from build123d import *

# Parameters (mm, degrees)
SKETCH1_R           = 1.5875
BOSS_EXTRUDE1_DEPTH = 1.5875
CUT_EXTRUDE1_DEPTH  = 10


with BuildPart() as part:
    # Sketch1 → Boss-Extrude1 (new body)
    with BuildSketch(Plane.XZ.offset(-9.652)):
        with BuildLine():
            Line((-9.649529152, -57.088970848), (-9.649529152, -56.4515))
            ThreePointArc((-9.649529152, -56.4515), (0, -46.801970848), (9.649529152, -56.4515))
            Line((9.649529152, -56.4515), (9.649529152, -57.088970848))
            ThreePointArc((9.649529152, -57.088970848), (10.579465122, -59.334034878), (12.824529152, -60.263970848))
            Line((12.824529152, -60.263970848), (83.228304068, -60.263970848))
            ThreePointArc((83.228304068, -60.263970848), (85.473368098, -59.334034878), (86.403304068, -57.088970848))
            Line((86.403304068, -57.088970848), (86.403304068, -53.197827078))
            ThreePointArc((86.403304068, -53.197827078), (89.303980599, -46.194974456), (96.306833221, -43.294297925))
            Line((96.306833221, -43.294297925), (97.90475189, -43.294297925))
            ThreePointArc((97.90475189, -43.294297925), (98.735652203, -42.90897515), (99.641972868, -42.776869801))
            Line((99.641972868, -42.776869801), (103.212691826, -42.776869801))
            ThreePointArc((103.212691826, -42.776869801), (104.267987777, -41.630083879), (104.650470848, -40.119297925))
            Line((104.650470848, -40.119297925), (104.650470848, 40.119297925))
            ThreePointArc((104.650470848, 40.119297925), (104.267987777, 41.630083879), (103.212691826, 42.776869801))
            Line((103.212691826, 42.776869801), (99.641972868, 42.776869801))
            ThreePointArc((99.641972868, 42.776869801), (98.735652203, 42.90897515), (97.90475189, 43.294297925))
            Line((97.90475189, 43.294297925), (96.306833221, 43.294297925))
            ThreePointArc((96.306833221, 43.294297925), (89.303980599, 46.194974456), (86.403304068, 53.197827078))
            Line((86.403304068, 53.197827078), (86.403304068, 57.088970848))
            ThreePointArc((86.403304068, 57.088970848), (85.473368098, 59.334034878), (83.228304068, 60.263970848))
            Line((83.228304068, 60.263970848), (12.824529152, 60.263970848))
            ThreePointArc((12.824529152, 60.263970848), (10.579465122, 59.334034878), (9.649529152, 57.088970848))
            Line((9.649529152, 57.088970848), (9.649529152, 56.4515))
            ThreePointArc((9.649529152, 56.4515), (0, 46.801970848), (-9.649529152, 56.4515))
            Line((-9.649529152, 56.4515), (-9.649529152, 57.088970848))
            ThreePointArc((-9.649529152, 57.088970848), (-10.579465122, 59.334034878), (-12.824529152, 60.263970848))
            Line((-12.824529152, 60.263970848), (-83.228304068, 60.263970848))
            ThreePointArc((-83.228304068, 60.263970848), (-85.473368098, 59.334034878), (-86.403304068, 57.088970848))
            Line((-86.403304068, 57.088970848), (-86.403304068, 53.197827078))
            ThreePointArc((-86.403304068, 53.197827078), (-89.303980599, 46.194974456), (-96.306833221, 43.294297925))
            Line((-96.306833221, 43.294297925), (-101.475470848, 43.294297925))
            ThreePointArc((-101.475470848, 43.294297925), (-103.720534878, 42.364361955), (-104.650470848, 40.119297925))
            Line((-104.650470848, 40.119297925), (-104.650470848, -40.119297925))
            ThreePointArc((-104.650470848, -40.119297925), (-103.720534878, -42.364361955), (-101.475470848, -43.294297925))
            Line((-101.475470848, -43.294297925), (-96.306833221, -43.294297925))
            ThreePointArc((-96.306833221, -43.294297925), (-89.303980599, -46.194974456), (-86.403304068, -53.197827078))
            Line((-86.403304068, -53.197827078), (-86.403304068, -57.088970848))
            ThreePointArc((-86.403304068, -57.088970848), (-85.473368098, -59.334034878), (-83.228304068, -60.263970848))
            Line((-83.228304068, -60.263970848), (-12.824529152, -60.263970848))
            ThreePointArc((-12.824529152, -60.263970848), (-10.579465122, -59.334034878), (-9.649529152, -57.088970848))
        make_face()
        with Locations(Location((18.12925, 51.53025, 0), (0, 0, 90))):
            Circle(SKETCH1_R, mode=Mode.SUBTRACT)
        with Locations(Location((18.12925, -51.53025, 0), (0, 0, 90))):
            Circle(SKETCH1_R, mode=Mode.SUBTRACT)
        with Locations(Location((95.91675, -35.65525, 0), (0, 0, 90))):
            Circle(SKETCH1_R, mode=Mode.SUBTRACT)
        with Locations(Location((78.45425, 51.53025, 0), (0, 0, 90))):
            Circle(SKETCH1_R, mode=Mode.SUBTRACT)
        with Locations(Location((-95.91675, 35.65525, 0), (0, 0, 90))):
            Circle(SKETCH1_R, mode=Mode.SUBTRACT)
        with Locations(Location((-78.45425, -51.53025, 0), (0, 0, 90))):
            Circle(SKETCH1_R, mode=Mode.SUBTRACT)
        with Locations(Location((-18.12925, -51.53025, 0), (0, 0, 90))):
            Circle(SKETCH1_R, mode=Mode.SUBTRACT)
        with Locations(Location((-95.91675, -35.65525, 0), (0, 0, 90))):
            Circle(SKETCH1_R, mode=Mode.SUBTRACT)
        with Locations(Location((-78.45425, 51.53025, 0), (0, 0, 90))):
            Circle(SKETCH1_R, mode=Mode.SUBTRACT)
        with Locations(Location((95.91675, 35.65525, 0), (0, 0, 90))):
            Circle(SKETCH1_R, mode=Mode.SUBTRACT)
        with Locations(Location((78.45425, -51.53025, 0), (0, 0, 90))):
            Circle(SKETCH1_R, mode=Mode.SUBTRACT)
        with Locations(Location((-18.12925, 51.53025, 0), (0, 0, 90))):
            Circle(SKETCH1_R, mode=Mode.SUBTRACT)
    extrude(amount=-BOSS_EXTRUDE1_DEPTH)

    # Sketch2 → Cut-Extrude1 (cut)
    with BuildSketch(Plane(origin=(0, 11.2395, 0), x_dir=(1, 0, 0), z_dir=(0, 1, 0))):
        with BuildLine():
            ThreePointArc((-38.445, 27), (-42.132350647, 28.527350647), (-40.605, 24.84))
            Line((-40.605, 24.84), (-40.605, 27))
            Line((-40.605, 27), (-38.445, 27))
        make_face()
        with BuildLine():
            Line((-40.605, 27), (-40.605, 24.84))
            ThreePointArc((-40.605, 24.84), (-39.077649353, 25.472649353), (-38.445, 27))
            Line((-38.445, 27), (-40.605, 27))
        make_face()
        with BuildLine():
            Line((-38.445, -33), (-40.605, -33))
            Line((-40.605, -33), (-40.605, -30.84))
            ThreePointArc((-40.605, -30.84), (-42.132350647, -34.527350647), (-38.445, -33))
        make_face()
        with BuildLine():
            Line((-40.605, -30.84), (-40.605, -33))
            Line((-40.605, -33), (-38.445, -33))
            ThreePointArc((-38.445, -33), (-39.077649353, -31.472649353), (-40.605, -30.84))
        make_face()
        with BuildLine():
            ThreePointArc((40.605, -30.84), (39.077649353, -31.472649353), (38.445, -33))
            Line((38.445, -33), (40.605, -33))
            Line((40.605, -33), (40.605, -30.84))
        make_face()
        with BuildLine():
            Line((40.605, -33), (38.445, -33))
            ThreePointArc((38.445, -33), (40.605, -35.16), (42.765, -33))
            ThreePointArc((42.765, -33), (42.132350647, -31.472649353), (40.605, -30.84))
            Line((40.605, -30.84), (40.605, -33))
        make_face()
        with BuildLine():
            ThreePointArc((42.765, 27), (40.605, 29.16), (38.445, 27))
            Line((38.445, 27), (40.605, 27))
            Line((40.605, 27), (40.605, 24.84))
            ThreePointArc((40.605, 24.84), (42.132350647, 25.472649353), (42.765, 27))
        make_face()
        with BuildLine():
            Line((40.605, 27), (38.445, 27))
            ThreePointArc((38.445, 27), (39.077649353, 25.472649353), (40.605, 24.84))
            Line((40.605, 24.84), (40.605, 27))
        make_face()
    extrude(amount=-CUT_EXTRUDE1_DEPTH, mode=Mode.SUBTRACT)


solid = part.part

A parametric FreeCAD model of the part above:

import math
import FreeCAD as App
import Part
import Sketcher
Q = App.Units.Quantity

doc = App.newDocument("Part")
body = doc.addObject("PartDesign::Body", "Body")

# Sketch on XZ plane
sketch1 = doc.addObject("Sketcher::SketchObject", "Sketch")
body.addObject(sketch1)
sketch1.AttachmentSupport = (doc.XZ_Plane, [""])
sketch1.MapMode = "FlatFace"
sketch1.AttachmentOffset = App.Placement(App.Vector(0, 0, -0.38 * 25.4), App.Rotation())
sketch1.addGeometry(Part.LineSegment(App.Vector(-9.6, -57.1, 0), App.Vector(-9.6, -56.5, 0)), False)
sketch1.addGeometry(Part.ArcOfCircle(Part.Circle(App.Vector(0, -56.5, 0), App.Vector(0, 0, 1), 9.6), math.radians(0), math.radians(180)), False)
sketch1.addGeometry(Part.LineSegment(App.Vector(9.6, -56.5, 0), App.Vector(9.6, -57.1, 0)), False)
sketch1.addGeometry(Part.ArcOfCircle(Part.Circle(App.Vector(12.8, -57.1, 0), App.Vector(0, 0, 1), 3.2), math.radians(-180), math.radians(-90)), False)
sketch1.addGeometry(Part.LineSegment(App.Vector(12.8, -60.3, 0), App.Vector(83.2, -60.3, 0)), False)
sketch1.addGeometry(Part.ArcOfCircle(Part.Circle(App.Vector(83.2, -57.1, 0), App.Vector(0, 0, 1), 3.2), math.radians(-90), math.radians(0)), False)
sketch1.addGeometry(Part.LineSegment(App.Vector(86.4, -57.1, 0), App.Vector(86.4, -53.2, 0)), False)
sketch1.addGeometry(Part.ArcOfCircle(Part.Circle(App.Vector(96.3, -53.2, 0), App.Vector(0, 0, 1), 9.9), math.radians(90), math.radians(180)), False)
sketch1.addGeometry(Part.LineSegment(App.Vector(96.3, -43.3, 0), App.Vector(97.9, -43.3, 0)), False)
sketch1.addGeometry(Part.ArcOfCircle(Part.Circle(App.Vector(99.6, -46, 0), App.Vector(0, 0, 1), 3.2), math.radians(90), math.radians(123)), False)
sketch1.addGeometry(Part.LineSegment(App.Vector(99.6, -42.8, 0), App.Vector(103.2, -42.8, 0)), False)
sketch1.addGeometry(Part.ArcOfCircle(Part.Circle(App.Vector(101.5, -40.1, 0), App.Vector(0, 0, 1), 3.2), math.radians(-57), math.radians(0)), False)
sketch1.addGeometry(Part.LineSegment(App.Vector(104.7, -40.1, 0), App.Vector(104.7, 40.1, 0)), False)
sketch1.addGeometry(Part.ArcOfCircle(Part.Circle(App.Vector(101.5, 40.1, 0), App.Vector(0, 0, 1), 3.2), math.radians(0), math.radians(57)), False)
sketch1.addGeometry(Part.LineSegment(App.Vector(103.2, 42.8, 0), App.Vector(99.6, 42.8, 0)), False)
sketch1.addGeometry(Part.ArcOfCircle(Part.Circle(App.Vector(99.6, 46, 0), App.Vector(0, 0, 1), 3.2), math.radians(-123), math.radians(-90)), False)
sketch1.addGeometry(Part.LineSegment(App.Vector(97.9, 43.3, 0), App.Vector(96.3, 43.3, 0)), False)
sketch1.addGeometry(Part.ArcOfCircle(Part.Circle(App.Vector(96.3, 53.2, 0), App.Vector(0, 0, 1), 9.9), math.radians(180), math.radians(270)), False)
sketch1.addGeometry(Part.LineSegment(App.Vector(86.4, 53.2, 0), App.Vector(86.4, 57.1, 0)), False)
sketch1.addGeometry(Part.ArcOfCircle(Part.Circle(App.Vector(83.2, 57.1, 0), App.Vector(0, 0, 1), 3.2), math.radians(0), math.radians(90)), False)
sketch1.addGeometry(Part.LineSegment(App.Vector(83.2, 60.3, 0), App.Vector(12.8, 60.3, 0)), False)
sketch1.addGeometry(Part.ArcOfCircle(Part.Circle(App.Vector(12.8, 57.1, 0), App.Vector(0, 0, 1), 3.2), math.radians(90), math.radians(180)), False)
sketch1.addGeometry(Part.LineSegment(App.Vector(9.6, 57.1, 0), App.Vector(9.6, 56.5, 0)), False)
sketch1.addGeometry(Part.ArcOfCircle(Part.Circle(App.Vector(0, 56.5, 0), App.Vector(0, 0, 1), 9.6), math.radians(180), math.radians(360)), False)
sketch1.addGeometry(Part.LineSegment(App.Vector(-9.6, 56.5, 0), App.Vector(-9.6, 57.1, 0)), False)
sketch1.addGeometry(Part.ArcOfCircle(Part.Circle(App.Vector(-12.8, 57.1, 0), App.Vector(0, 0, 1), 3.2), math.radians(0), math.radians(90)), False)
sketch1.addGeometry(Part.LineSegment(App.Vector(-12.8, 60.3, 0), App.Vector(-83.2, 60.3, 0)), False)
sketch1.addGeometry(Part.ArcOfCircle(Part.Circle(App.Vector(-83.2, 57.1, 0), App.Vector(0, 0, 1), 3.2), math.radians(90), math.radians(180)), False)
sketch1.addGeometry(Part.LineSegment(App.Vector(-86.4, 57.1, 0), App.Vector(-86.4, 53.2, 0)), False)
sketch1.addGeometry(Part.ArcOfCircle(Part.Circle(App.Vector(-96.3, 53.2, 0), App.Vector(0, 0, 1), 9.9), math.radians(-90), math.radians(0)), False)
sketch1.addGeometry(Part.LineSegment(App.Vector(-96.3, 43.3, 0), App.Vector(-101.5, 43.3, 0)), False)
sketch1.addGeometry(Part.ArcOfCircle(Part.Circle(App.Vector(-101.5, 40.1, 0), App.Vector(0, 0, 1), 3.2), math.radians(90), math.radians(180)), False)
sketch1.addGeometry(Part.LineSegment(App.Vector(-104.7, 40.1, 0), App.Vector(-104.7, -40.1, 0)), False)
sketch1.addGeometry(Part.ArcOfCircle(Part.Circle(App.Vector(-101.5, -40.1, 0), App.Vector(0, 0, 1), 3.2), math.radians(-180), math.radians(-90)), False)
sketch1.addGeometry(Part.LineSegment(App.Vector(-101.5, -43.3, 0), App.Vector(-96.3, -43.3, 0)), False)
sketch1.addGeometry(Part.ArcOfCircle(Part.Circle(App.Vector(-96.3, -53.2, 0), App.Vector(0, 0, 1), 9.9), math.radians(0), math.radians(90)), False)
sketch1.addGeometry(Part.LineSegment(App.Vector(-86.4, -53.2, 0), App.Vector(-86.4, -57.1, 0)), False)
sketch1.addGeometry(Part.ArcOfCircle(Part.Circle(App.Vector(-83.2, -57.1, 0), App.Vector(0, 0, 1), 3.2), math.radians(-180), math.radians(-90)), False)
sketch1.addGeometry(Part.LineSegment(App.Vector(-83.2, -60.3, 0), App.Vector(-12.8, -60.3, 0)), False)
sketch1.addGeometry(Part.ArcOfCircle(Part.Circle(App.Vector(-12.8, -57.1, 0), App.Vector(0, 0, 1), 3.2), math.radians(-90), math.radians(0)), False)
sketch1.addGeometry(Part.Circle(App.Vector(-78.5, -51.5, 0), App.Vector(0, 0, 1), 1.6), False)
sketch1.addGeometry(Part.Circle(App.Vector(-95.9, -35.7, 0), App.Vector(0, 0, 1), 1.6), False)
sketch1.addGeometry(Part.Circle(App.Vector(-18.1, -51.5, 0), App.Vector(0, 0, 1), 1.6), False)
sketch1.addGeometry(Part.Circle(App.Vector(18.1, -51.5, 0), App.Vector(0, 0, 1), 1.6), False)
sketch1.addGeometry(Part.Circle(App.Vector(78.5, -51.5, 0), App.Vector(0, 0, 1), 1.6), False)
sketch1.addGeometry(Part.Circle(App.Vector(95.9, -35.7, 0), App.Vector(0, 0, 1), 1.6), False)
sketch1.addGeometry(Part.Circle(App.Vector(-95.9, 35.7, 0), App.Vector(0, 0, 1), 1.6), False)
sketch1.addGeometry(Part.Circle(App.Vector(-78.5, 51.5, 0), App.Vector(0, 0, 1), 1.6), False)
sketch1.addGeometry(Part.Circle(App.Vector(-18.1, 51.5, 0), App.Vector(0, 0, 1), 1.6), False)
sketch1.addGeometry(Part.Circle(App.Vector(18.1, 51.5, 0), App.Vector(0, 0, 1), 1.6), False)
sketch1.addGeometry(Part.Circle(App.Vector(95.9, 35.7, 0), App.Vector(0, 0, 1), 1.6), False)
sketch1.addGeometry(Part.Circle(App.Vector(78.5, 51.5, 0), App.Vector(0, 0, 1), 1.6), False)
sketch1.addConstraint(Sketcher.Constraint("Tangent", 0, 2, 1, 2))
sketch1.addConstraint(Sketcher.Constraint("Tangent", 1, 1, 2, 1))
sketch1.addConstraint(Sketcher.Constraint("Tangent", 2, 2, 3, 1))
sketch1.addConstraint(Sketcher.Constraint("Tangent", 3, 2, 4, 1))
sketch1.addConstraint(Sketcher.Constraint("Tangent", 4, 2, 5, 1))
sketch1.addConstraint(Sketcher.Constraint("Tangent", 5, 2, 6, 1))
sketch1.addConstraint(Sketcher.Constraint("Tangent", 6, 2, 7, 2))
sketch1.addConstraint(Sketcher.Constraint("Tangent", 7, 1, 8, 1))
sketch1.addConstraint(Sketcher.Constraint("Coincident", 8, 2, 9, 2))
sketch1.addConstraint(Sketcher.Constraint("Tangent", 9, 1, 10, 1))
sketch1.addConstraint(Sketcher.Constraint("Coincident", 10, 2, 11, 1))
sketch1.addConstraint(Sketcher.Constraint("Tangent", 11, 2, 12, 1))
sketch1.addConstraint(Sketcher.Constraint("Tangent", 12, 2, 13, 1))
sketch1.addConstraint(Sketcher.Constraint("Coincident", 13, 2, 14, 1))
sketch1.addConstraint(Sketcher.Constraint("Tangent", 14, 2, 15, 2))
sketch1.addConstraint(Sketcher.Constraint("Coincident", 15, 1, 16, 1))
sketch1.addConstraint(Sketcher.Constraint("Tangent", 16, 2, 17, 2))
sketch1.addConstraint(Sketcher.Constraint("Tangent", 17, 1, 18, 1))
sketch1.addConstraint(Sketcher.Constraint("Tangent", 18, 2, 19, 1))
sketch1.addConstraint(Sketcher.Constraint("Tangent", 19, 2, 20, 1))
sketch1.addConstraint(Sketcher.Constraint("Tangent", 20, 2, 21, 1))
sketch1.addConstraint(Sketcher.Constraint("Tangent", 21, 2, 22, 1))
sketch1.addConstraint(Sketcher.Constraint("Tangent", 22, 2, 23, 2))
sketch1.addConstraint(Sketcher.Constraint("Tangent", 23, 1, 24, 1))
sketch1.addConstraint(Sketcher.Constraint("Tangent", 24, 2, 25, 1))
sketch1.addConstraint(Sketcher.Constraint("Tangent", 25, 2, 26, 1))
sketch1.addConstraint(Sketcher.Constraint("Tangent", 26, 2, 27, 1))
sketch1.addConstraint(Sketcher.Constraint("Tangent", 27, 2, 28, 1))
sketch1.addConstraint(Sketcher.Constraint("Tangent", 28, 2, 29, 2))
sketch1.addConstraint(Sketcher.Constraint("Tangent", 29, 1, 30, 1))
sketch1.addConstraint(Sketcher.Constraint("Tangent", 30, 2, 31, 1))
sketch1.addConstraint(Sketcher.Constraint("Tangent", 31, 2, 32, 1))
sketch1.addConstraint(Sketcher.Constraint("Tangent", 32, 2, 33, 1))
sketch1.addConstraint(Sketcher.Constraint("Tangent", 33, 2, 34, 1))
sketch1.addConstraint(Sketcher.Constraint("Tangent", 34, 2, 35, 2))
sketch1.addConstraint(Sketcher.Constraint("Tangent", 35, 1, 36, 1))
sketch1.addConstraint(Sketcher.Constraint("Tangent", 36, 2, 37, 1))
sketch1.addConstraint(Sketcher.Constraint("Tangent", 37, 2, 38, 1))
sketch1.addConstraint(Sketcher.Constraint("Tangent", 38, 2, 39, 1))
sketch1.addConstraint(Sketcher.Constraint("Tangent", 39, 2, 0, 1))
sketch1.addConstraint(Sketcher.Constraint("Vertical", 0))
sketch1.addConstraint(Sketcher.Constraint("Vertical", 2))
sketch1.addConstraint(Sketcher.Constraint("Horizontal", 4))
sketch1.addConstraint(Sketcher.Constraint("Vertical", 6))
sketch1.addConstraint(Sketcher.Constraint("Horizontal", 8))
sketch1.addConstraint(Sketcher.Constraint("Horizontal", 10))
sketch1.addConstraint(Sketcher.Constraint("Vertical", 12))
sketch1.addConstraint(Sketcher.Constraint("Horizontal", 14))
sketch1.addConstraint(Sketcher.Constraint("Horizontal", 16))
sketch1.addConstraint(Sketcher.Constraint("Vertical", 18))
sketch1.addConstraint(Sketcher.Constraint("Horizontal", 20))
sketch1.addConstraint(Sketcher.Constraint("Vertical", 22))
sketch1.addConstraint(Sketcher.Constraint("Vertical", 24))
sketch1.addConstraint(Sketcher.Constraint("Horizontal", 26))
sketch1.addConstraint(Sketcher.Constraint("Vertical", 28))
sketch1.addConstraint(Sketcher.Constraint("Horizontal", 30))
sketch1.addConstraint(Sketcher.Constraint("Vertical", 32))
sketch1.addConstraint(Sketcher.Constraint("Horizontal", 34))
sketch1.addConstraint(Sketcher.Constraint("Vertical", 36))
sketch1.addConstraint(Sketcher.Constraint("Horizontal", 38))
sketch1.addConstraint(Sketcher.Constraint("Equal", 3, 5))
sketch1.addConstraint(Sketcher.Constraint("Equal", 5, 9))
sketch1.addConstraint(Sketcher.Constraint("Equal", 9, 11))
sketch1.addConstraint(Sketcher.Constraint("Equal", 11, 13))
sketch1.addConstraint(Sketcher.Constraint("Equal", 13, 15))
sketch1.addConstraint(Sketcher.Constraint("Equal", 7, 17))
sketch1.addConstraint(Sketcher.Constraint("Equal", 15, 19))
sketch1.addConstraint(Sketcher.Constraint("Equal", 19, 21))
sketch1.addConstraint(Sketcher.Constraint("Equal", 1, 23))
sketch1.addConstraint(Sketcher.Constraint("Equal", 21, 25))
sketch1.addConstraint(Sketcher.Constraint("Equal", 25, 27))
sketch1.addConstraint(Sketcher.Constraint("Equal", 17, 29))
sketch1.addConstraint(Sketcher.Constraint("Equal", 27, 31))
sketch1.addConstraint(Sketcher.Constraint("Equal", 31, 33))
sketch1.addConstraint(Sketcher.Constraint("Equal", 29, 35))
sketch1.addConstraint(Sketcher.Constraint("Equal", 33, 37))
sketch1.addConstraint(Sketcher.Constraint("Equal", 37, 39))
sketch1.addConstraint(Sketcher.Constraint("Equal", 40, 41))
sketch1.addConstraint(Sketcher.Constraint("Equal", 41, 42))
sketch1.addConstraint(Sketcher.Constraint("Equal", 42, 43))
sketch1.addConstraint(Sketcher.Constraint("Equal", 43, 44))
sketch1.addConstraint(Sketcher.Constraint("Equal", 44, 45))
sketch1.addConstraint(Sketcher.Constraint("Equal", 45, 46))
sketch1.addConstraint(Sketcher.Constraint("Equal", 46, 47))
sketch1.addConstraint(Sketcher.Constraint("Equal", 47, 48))
sketch1.addConstraint(Sketcher.Constraint("Equal", 48, 49))
sketch1.addConstraint(Sketcher.Constraint("Equal", 49, 50))
sketch1.addConstraint(Sketcher.Constraint("Equal", 50, 51))
sketch1.addConstraint(Sketcher.Constraint("Symmetric", 1, 3, 23, 3, -1, 1))
sketch1.addConstraint(Sketcher.Constraint("Symmetric", 5, 3, 27, 3, -1, 1))
sketch1.addConstraint(Sketcher.Constraint("Symmetric", 11, 3, 31, 3, -1, 1))
sketch1.addConstraint(Sketcher.Constraint("Symmetric", 17, 3, 35, 3, -1, 1))
sketch1.addConstraint(Sketcher.Constraint("Symmetric", 45, 3, 46, 3, -1, 1))
sketch1.addConstraint(Sketcher.Constraint("Symmetric", 44, 3, 47, 3, -1, 1))
sketch1.addConstraint(Sketcher.Constraint("Symmetric", 43, 3, 48, 3, -1, 1))
sketch1.addConstraint(Sketcher.Constraint("Symmetric", 42, 3, 49, 3, -1, 1))
sketch1.addConstraint(Sketcher.Constraint("Symmetric", 41, 3, 50, 3, -1, 1))
sketch1.addConstraint(Sketcher.Constraint("Symmetric", 40, 3, 51, 3, -1, 1))
sketch1.addConstraint(Sketcher.Constraint("Symmetric", 21, 3, 25, 3, -2))
sketch1.addConstraint(Sketcher.Constraint("Symmetric", 17, 3, 29, 3, -2))
sketch1.addConstraint(Sketcher.Constraint("Symmetric", 42, 3, 43, 3, -2))
sketch1.addConstraint(Sketcher.Constraint("Symmetric", 40, 3, 44, 3, -2))
sketch1.addConstraint(Sketcher.Constraint("Symmetric", 41, 3, 45, 3, -2))
sketch1.addConstraint(Sketcher.Constraint("Symmetric", 9, 3, 15, 3, -1))
sketch1.addConstraint(Sketcher.Constraint("Horizontal", 13, 3, 31, 3))
sketch1.addConstraint(Sketcher.Constraint("Horizontal", 7, 3, 35, 3))
sketch1.addConstraint(Sketcher.Constraint("Horizontal", 5, 3, 37, 3))
sketch1.addConstraint(Sketcher.Constraint("Horizontal", 40, 3, 42, 3))
sketch1.addConstraint(Sketcher.Constraint("Diameter", 40, Q("0.125 in")))
sketch1.addConstraint(Sketcher.Constraint("Radius", 3, Q("0.125 in")))
sketch1.addConstraint(Sketcher.Constraint("DistanceY", 12, 1, 12, 2, Q("3.1589998 in")))
sketch1.addConstraint(Sketcher.Constraint("Radius", 1, 9.649529))
sketch1.addConstraint(Sketcher.Constraint("Radius", 7, 9.903529))
sketch1.addConstraint(Sketcher.Constraint("DistanceY", 1, 3, -1, 1, Q("2.2225 in")))
sketch1.addConstraint(Sketcher.Constraint("DistanceX", 8, 1, 8, 2, 1.597919))
sketch1.addConstraint(Sketcher.Constraint("DistanceX", 10, 1, 10, 2, 3.570719))
sketch1.addConstraint(Sketcher.Constraint("DistanceY", 0, 1, 0, 2, 0.637471))
sketch1.addConstraint(Sketcher.Constraint("DistanceX", 4, 1, 4, 2, 70.403775))
sketch1.addConstraint(Sketcher.Constraint("DistanceY", 9, 3, -1, 1, 45.95187))
sketch1.addConstraint(Sketcher.Constraint("DistanceX", 40, 3, -1, 1, 78.45425))
sketch1.addConstraint(Sketcher.Constraint("DistanceY", 40, 3, -1, 1, 51.53025))
sketch1.addConstraint(Sketcher.Constraint("DistanceX", 41, 3, -1, 1, 95.91675))
sketch1.addConstraint(Sketcher.Constraint("DistanceY", 41, 3, -1, 1, 35.65525))
sketch1.addConstraint(Sketcher.Constraint("DistanceX", 42, 3, -1, 1, 18.12925))
pad1 = doc.addObject("PartDesign::Pad", "Pad")
body.addObject(pad1)
pad1.Profile = sketch1
pad1.Length = Q("0.0625 in")
pad1.Reversed = True

# Sketch on XZ plane
sketch2 = doc.addObject("Sketcher::SketchObject", "Sketch001")
body.addObject(sketch2)
sketch2.AttachmentSupport = (doc.XZ_Plane, [""])
sketch2.MapMode = "FlatFace"
sketch2.AttachmentOffset = App.Placement(App.Vector(0, 0, -0.4425 * 25.4), App.Rotation())
sketch2.addGeometry(Part.ArcOfCircle(Part.Circle(App.Vector(-40.6, -27, 0), App.Vector(0, 0, 1), 2.2), math.radians(90), math.radians(360)), False)
sketch2.addGeometry(Part.ArcOfCircle(Part.Circle(App.Vector(-40.6, -27, 0), App.Vector(0, 0, 1), 2.2), math.radians(0), math.radians(90)), False)
sketch2.addGeometry(Part.ArcOfCircle(Part.Circle(App.Vector(-40.6, 33, 0), App.Vector(0, 0, 1), 2.2), math.radians(0), math.radians(270)), False)
sketch2.addGeometry(Part.ArcOfCircle(Part.Circle(App.Vector(-40.6, 33, 0), App.Vector(0, 0, 1), 2.2), math.radians(-90), math.radians(0)), False)
sketch2.addGeometry(Part.ArcOfCircle(Part.Circle(App.Vector(40.6, 33, 0), App.Vector(0, 0, 1), 2.2), math.radians(-180), math.radians(-90)), False)
sketch2.addGeometry(Part.ArcOfCircle(Part.Circle(App.Vector(40.6, 33, 0), App.Vector(0, 0, 1), 2.2), math.radians(0), math.radians(180)), False)
sketch2.addGeometry(Part.ArcOfCircle(Part.Circle(App.Vector(40.6, 33, 0), App.Vector(0, 0, 1), 2.2), math.radians(-90), math.radians(0)), False)
sketch2.addGeometry(Part.ArcOfCircle(Part.Circle(App.Vector(40.6, -27, 0), App.Vector(0, 0, 1), 2.2), math.radians(180), math.radians(360)), False)
sketch2.addGeometry(Part.ArcOfCircle(Part.Circle(App.Vector(40.6, -27, 0), App.Vector(0, 0, 1), 2.2), math.radians(90), math.radians(180)), False)
sketch2.addGeometry(Part.ArcOfCircle(Part.Circle(App.Vector(40.6, -27, 0), App.Vector(0, 0, 1), 2.2), math.radians(0), math.radians(90)), False)
sketch2.addConstraint(Sketcher.Constraint("Tangent", 0, 1, 1, 2))
sketch2.addConstraint(Sketcher.Constraint("Coincident", 1, 1, 0, 2))
sketch2.addConstraint(Sketcher.Constraint("Tangent", 2, 1, 3, 2))
sketch2.addConstraint(Sketcher.Constraint("Coincident", 3, 1, 2, 2))
sketch2.addConstraint(Sketcher.Constraint("Tangent", 4, 1, 5, 2))
sketch2.addConstraint(Sketcher.Constraint("Tangent", 5, 1, 6, 2))
sketch2.addConstraint(Sketcher.Constraint("Tangent", 6, 1, 4, 2))
sketch2.addConstraint(Sketcher.Constraint("Tangent", 7, 1, 8, 2))
sketch2.addConstraint(Sketcher.Constraint("Tangent", 8, 1, 9, 2))
sketch2.addConstraint(Sketcher.Constraint("Tangent", 9, 1, 7, 2))
sketch2.addConstraint(Sketcher.Constraint("Equal", 1, 2))
sketch2.addConstraint(Sketcher.Constraint("Equal", 3, 4))
sketch2.addConstraint(Sketcher.Constraint("Equal", 6, 7))
sketch2.addConstraint(Sketcher.Constraint("Symmetric", 2, 3, 4, 3, -2))
sketch2.addConstraint(Sketcher.Constraint("Symmetric", 0, 3, 7, 3, -2))
sketch2.addConstraint(Sketcher.Constraint("Horizontal", 9, 3, 1, 1))
sketch2.addConstraint(Sketcher.Constraint("Horizontal", 6, 3, 2, 1))
sketch2.addConstraint(Sketcher.Constraint("Horizontal", 2, 1, 4, 1))
sketch2.addConstraint(Sketcher.Constraint("Horizontal", 4, 1, 5, 1))
sketch2.addConstraint(Sketcher.Constraint("Horizontal", 1, 1, 7, 1))
sketch2.addConstraint(Sketcher.Constraint("Horizontal", 7, 1, 9, 1))
sketch2.addConstraint(Sketcher.Constraint("Vertical", 1, 3, 2, 3))
sketch2.addConstraint(Sketcher.Constraint("Vertical", 3, 3, 0, 1))
sketch2.addConstraint(Sketcher.Constraint("Vertical", 0, 1, 3, 1))
sketch2.addConstraint(Sketcher.Constraint("Vertical", 9, 3, 6, 1))
sketch2.addConstraint(Sketcher.Constraint("Vertical", 6, 1, 8, 1))
sketch2.addConstraint(Sketcher.Constraint("Radius", 0, 2.16))
sketch2.addConstraint(Sketcher.Constraint("DistanceX", 0, 3, -1, 1, 40.605))
sketch2.addConstraint(Sketcher.Constraint("DistanceY", 0, 3, -1, 1, 27.0))
sketch2.addConstraint(Sketcher.Constraint("DistanceY", -1, 1, 2, 3, 33.0))
pocket1 = doc.addObject("PartDesign::Pocket", "Pocket")
body.addObject(pocket1)
pocket1.Profile = sketch2
pocket1.Length = 10
pocket1.Reversed = True

doc.recompute()
